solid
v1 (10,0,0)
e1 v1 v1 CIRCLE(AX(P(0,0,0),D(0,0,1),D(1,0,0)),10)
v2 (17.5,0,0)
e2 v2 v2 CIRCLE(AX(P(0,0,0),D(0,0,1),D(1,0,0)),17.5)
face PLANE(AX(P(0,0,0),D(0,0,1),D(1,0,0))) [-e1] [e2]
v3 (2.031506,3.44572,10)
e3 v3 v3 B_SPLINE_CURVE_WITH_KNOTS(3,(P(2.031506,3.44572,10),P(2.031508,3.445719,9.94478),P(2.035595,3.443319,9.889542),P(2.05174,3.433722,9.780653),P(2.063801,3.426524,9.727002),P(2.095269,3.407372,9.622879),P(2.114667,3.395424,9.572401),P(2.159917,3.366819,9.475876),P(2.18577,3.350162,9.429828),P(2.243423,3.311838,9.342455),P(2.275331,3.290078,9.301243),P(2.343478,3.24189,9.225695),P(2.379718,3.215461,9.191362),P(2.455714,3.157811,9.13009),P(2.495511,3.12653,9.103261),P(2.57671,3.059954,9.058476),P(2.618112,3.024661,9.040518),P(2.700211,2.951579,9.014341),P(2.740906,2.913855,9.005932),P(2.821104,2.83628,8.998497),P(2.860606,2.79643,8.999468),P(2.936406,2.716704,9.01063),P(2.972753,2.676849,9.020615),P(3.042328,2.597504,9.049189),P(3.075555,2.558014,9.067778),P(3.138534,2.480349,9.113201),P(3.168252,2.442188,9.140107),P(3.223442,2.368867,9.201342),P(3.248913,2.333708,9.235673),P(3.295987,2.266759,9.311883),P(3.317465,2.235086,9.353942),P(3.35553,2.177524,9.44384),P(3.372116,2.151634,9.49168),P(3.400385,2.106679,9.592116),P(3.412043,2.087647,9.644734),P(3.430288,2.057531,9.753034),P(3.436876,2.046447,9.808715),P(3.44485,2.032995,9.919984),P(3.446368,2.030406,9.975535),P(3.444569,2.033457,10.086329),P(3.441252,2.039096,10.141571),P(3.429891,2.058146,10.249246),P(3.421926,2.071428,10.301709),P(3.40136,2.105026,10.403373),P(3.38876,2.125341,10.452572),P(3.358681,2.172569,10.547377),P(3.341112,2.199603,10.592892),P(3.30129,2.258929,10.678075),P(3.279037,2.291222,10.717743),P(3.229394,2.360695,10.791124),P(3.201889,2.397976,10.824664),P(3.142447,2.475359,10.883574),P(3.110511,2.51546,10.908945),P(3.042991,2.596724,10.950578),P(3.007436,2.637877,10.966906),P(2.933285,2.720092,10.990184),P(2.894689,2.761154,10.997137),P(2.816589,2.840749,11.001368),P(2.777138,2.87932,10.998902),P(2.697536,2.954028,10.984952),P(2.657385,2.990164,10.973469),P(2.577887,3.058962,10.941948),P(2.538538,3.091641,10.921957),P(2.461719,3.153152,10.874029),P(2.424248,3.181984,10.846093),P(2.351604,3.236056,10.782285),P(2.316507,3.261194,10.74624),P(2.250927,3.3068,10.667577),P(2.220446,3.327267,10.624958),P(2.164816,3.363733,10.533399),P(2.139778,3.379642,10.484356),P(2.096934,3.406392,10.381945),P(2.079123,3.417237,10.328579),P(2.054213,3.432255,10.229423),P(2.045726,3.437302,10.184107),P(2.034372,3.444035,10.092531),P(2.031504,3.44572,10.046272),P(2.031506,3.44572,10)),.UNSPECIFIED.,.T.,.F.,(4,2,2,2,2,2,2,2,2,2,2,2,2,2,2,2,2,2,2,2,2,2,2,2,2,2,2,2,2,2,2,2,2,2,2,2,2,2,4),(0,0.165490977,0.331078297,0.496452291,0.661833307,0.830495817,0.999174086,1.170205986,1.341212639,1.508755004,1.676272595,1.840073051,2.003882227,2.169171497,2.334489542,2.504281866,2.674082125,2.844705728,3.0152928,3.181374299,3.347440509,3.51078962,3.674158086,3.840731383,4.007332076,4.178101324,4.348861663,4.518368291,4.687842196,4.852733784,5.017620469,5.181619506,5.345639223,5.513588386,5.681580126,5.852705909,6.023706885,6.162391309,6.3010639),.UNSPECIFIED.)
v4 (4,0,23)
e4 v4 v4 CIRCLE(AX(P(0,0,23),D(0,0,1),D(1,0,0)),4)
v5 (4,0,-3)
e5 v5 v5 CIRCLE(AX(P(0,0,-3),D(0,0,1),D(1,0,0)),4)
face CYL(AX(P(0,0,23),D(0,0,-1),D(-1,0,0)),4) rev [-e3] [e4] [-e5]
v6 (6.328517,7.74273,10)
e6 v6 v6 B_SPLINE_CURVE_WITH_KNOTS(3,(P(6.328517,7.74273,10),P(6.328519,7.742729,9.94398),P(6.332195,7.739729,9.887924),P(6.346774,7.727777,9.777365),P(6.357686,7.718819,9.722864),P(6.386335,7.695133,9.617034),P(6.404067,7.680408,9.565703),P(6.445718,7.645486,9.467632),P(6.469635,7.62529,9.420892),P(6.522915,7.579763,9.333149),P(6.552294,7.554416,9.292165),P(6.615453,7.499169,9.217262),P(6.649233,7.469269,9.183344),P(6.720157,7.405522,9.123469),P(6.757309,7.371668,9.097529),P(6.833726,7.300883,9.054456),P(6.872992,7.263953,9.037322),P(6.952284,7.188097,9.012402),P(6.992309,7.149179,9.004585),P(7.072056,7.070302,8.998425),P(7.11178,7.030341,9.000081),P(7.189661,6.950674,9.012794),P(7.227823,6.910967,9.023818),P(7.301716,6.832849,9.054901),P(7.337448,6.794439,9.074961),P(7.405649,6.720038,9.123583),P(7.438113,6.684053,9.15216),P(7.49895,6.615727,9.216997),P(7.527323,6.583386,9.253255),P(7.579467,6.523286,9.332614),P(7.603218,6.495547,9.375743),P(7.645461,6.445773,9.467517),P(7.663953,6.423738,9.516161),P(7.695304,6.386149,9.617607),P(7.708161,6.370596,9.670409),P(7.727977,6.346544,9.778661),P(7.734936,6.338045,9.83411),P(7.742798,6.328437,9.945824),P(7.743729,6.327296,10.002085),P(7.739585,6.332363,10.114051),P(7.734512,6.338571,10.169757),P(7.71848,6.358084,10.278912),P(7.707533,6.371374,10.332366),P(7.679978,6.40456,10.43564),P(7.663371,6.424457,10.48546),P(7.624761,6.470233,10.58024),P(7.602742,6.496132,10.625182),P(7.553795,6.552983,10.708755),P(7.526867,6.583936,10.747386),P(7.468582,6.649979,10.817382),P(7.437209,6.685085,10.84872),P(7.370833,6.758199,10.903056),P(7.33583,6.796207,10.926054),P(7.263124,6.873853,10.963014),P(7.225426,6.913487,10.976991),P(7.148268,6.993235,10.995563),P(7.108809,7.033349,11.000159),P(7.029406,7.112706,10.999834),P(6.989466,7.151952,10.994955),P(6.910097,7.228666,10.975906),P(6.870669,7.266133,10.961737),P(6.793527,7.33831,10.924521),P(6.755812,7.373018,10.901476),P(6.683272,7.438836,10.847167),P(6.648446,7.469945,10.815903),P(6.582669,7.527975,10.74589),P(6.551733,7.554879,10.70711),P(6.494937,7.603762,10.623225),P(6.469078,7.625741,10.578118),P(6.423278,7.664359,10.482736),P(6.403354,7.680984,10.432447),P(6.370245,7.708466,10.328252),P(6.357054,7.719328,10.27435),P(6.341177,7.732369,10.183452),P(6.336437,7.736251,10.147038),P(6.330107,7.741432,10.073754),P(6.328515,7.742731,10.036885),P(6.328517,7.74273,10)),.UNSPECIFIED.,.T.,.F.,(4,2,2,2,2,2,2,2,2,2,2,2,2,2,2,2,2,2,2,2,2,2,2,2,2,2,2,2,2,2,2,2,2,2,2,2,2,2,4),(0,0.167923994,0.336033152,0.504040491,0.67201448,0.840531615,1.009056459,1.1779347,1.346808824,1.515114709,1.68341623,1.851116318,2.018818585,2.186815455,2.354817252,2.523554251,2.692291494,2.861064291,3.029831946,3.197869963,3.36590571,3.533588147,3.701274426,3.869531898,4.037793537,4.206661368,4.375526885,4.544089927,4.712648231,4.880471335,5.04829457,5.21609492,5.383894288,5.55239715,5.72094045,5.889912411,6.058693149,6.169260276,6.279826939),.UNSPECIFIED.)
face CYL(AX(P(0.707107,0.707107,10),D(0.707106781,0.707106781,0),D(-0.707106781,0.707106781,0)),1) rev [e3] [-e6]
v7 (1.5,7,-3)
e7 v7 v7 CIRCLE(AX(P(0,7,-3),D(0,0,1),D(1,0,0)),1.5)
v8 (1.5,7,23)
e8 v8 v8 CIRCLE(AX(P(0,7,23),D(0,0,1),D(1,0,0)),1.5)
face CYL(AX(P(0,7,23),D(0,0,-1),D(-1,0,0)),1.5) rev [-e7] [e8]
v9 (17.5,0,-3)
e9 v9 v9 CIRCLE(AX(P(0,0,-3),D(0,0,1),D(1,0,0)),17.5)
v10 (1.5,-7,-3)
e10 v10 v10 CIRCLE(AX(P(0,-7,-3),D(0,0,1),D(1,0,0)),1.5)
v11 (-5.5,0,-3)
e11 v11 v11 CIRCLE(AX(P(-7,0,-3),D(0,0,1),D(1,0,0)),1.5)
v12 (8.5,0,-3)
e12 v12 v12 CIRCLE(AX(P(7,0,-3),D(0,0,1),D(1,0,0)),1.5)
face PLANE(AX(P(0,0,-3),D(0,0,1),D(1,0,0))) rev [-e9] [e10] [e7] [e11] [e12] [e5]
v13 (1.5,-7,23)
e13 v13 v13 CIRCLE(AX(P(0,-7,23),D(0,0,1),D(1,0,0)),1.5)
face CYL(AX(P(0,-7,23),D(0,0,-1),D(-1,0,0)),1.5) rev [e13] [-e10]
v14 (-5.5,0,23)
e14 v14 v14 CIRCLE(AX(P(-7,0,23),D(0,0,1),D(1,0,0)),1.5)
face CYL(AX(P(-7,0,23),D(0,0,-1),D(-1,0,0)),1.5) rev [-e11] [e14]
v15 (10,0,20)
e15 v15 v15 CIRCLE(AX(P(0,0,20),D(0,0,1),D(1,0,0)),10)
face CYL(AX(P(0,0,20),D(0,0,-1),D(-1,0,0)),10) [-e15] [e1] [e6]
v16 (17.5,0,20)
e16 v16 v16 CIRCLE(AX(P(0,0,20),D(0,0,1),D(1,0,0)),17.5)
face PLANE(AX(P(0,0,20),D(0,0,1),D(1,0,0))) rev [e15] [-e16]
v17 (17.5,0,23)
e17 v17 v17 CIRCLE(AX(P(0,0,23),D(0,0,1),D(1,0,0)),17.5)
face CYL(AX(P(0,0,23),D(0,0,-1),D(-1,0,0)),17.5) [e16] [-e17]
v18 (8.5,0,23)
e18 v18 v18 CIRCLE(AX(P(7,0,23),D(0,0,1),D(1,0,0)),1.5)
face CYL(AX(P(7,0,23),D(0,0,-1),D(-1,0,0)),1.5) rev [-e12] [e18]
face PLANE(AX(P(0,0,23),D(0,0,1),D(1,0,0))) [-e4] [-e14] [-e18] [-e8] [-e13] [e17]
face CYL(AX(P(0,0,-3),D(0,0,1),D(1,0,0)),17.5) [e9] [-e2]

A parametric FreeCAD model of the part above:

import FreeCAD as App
import Part
import Sketcher
from FreeCAD import Vector

doc = App.newDocument("Part")
params = doc.addObject("Spreadsheet::Sheet", "Params")
for row, (alias, value) in enumerate([
    ("sketch1_diameter", "35 mm"),
    ("sketch1_diameter2", "3 mm"),
    ("sketch1_diameter3", "8 mm"),
    ("pad1_length", "23 mm"),
    ("sketch2_diameter", "35 mm"),
    ("sketch2_diameter2", "20 mm"),
    ("pocket1_length", "20 mm"),
    ("sketch3_diameter", "35 mm"),
    ("sketch3_diameter2", "3 mm"),
    ("sketch3_diameter3", "8 mm"),
    ("pad2_length", "3 mm"),
    ("sketch4_diameter", "2 mm"),
    ("pocket2_length", "9 mm"),
], start=1):
    params.set(f"A{row}", alias)
    params.set(f"B{row}", "=" + value)
    params.setAlias(f"B{row}", alias)

body = doc.addObject("PartDesign::Body", "Body")

# Sketch on XY plane
sketch1 = body.newObject("Sketcher::SketchObject", "Sketch")
sketch1.AttachmentSupport = (doc.getObject("XY_Plane"), [""])
sketch1.MapMode = "FlatFace"
sketch1.addGeometry(Part.Circle(Vector(0, 0, 0), Vector(0, 0, 1), 17.5), False)
sketch1.addGeometry(Part.Circle(Vector(0, 7, 0), Vector(0, 0, 1), 1.5), False)
sketch1.addGeometry(Part.Circle(Vector(0, -7, 0), Vector(0, 0, 1), 1.5), False)
sketch1.addGeometry(Part.Circle(Vector(-7, 0, 0), Vector(0, 0, 1), 1.5), False)
sketch1.addGeometry(Part.Circle(Vector(0, 0, 0), Vector(0, 0, 1), 4), False)
sketch1.addGeometry(Part.Circle(Vector(7, 0, 0), Vector(0, 0, 1), 1.5), False)
sketch1.addConstraint(Sketcher.Constraint("Coincident", 0, 3, -1, 1))
sketch1.addConstraint(Sketcher.Constraint("Coincident", 4, 3, -1, 1))
sketch1.addConstraint(Sketcher.Constraint("Equal", 1, 2))
sketch1.addConstraint(Sketcher.Constraint("Equal", 2, 3))
sketch1.addConstraint(Sketcher.Constraint("Equal", 3, 5))
sketch1.addConstraint(Sketcher.Constraint("Symmetric", 1, 3, 2, 3, -1, 1))
sketch1.addConstraint(Sketcher.Constraint("Symmetric", 3, 3, 5, 3, -1, 1))
sketch1.addConstraint(Sketcher.Constraint("PointOnObject", 1, 3, -2))
sketch1.addConstraint(Sketcher.Constraint("PointOnObject", 3, 3, -1))
sketch1.addConstraint(Sketcher.Constraint("Diameter", 0, 35.0))
sketch1.addConstraint(Sketcher.Constraint("Diameter", 1, 3.0))
sketch1.addConstraint(Sketcher.Constraint("Diameter", 4, 8.0))
sketch1.addConstraint(Sketcher.Constraint("DistanceY", -1, 1, 1, 3, 7.0))
sketch1.addConstraint(Sketcher.Constraint("DistanceX", 3, 3, -1, 1, 7.0))
sketch1.setExpression("Constraints[9]", "Params.sketch1_diameter")
sketch1.setExpression("Constraints[10]", "Params.sketch1_diameter2")
sketch1.setExpression("Constraints[11]", "Params.sketch1_diameter3")
pad1 = body.newObject("PartDesign::Pad", "Pad")
pad1.Profile = sketch1
pad1.setExpression("Length", "Params.pad1_length")

# Sketch on XY plane
sketch2 = body.newObject("Sketcher::SketchObject", "Sketch001")
sketch2.AttachmentSupport = (doc.getObject("XY_Plane"), [""])
sketch2.MapMode = "FlatFace"
sketch2.addGeometry(Part.Circle(Vector(0, 0, 0), Vector(0, 0, 1), 18), False)
sketch2.addGeometry(Part.Circle(Vector(0, 0, 0), Vector(0, 0, 1), 10), False)
sketch2.addConstraint(Sketcher.Constraint("Coincident", 0, 3, -1, 1))
sketch2.addConstraint(Sketcher.Constraint("Coincident", 1, 3, -1, 1))
sketch2.addConstraint(Sketcher.Constraint("Diameter", 0, 35.0))
sketch2.addConstraint(Sketcher.Constraint("Diameter", 1, 20.0))
sketch2.setExpression("Constraints[2]", "Params.sketch2_diameter")
sketch2.setExpression("Constraints[3]", "Params.sketch2_diameter2")
pocket1 = body.newObject("PartDesign::Pocket", "Pocket")
pocket1.Profile = sketch2
pocket1.setExpression("Length", "Params.pocket1_length")
pocket1.Reversed = True

# Sketch on XY plane
sketch3 = body.newObject("Sketcher::SketchObject", "Sketch002")
sketch3.AttachmentSupport = (doc.getObject("XY_Plane"), [""])
sketch3.MapMode = "FlatFace"
sketch3.AttachmentOffset = App.Placement(Vector(0, 0, -3), App.Rotation())
sketch3.addGeometry(Part.Circle(Vector(0, 0, 0), Vector(0, 0, 1), 17.5), False)
sketch3.addGeometry(Part.Circle(Vector(0, 7, 0), Vector(0, 0, 1), 1.5), False)
sketch3.addGeometry(Part.Circle(Vector(0, -7, 0), Vector(0, 0, 1), 1.5), False)
sketch3.addGeometry(Part.Circle(Vector(-7, 0, 0), Vector(0, 0, 1), 1.5), False)
sketch3.addGeometry(Part.Circle(Vector(0, 0, 0), Vector(0, 0, 1), 4), False)
sketch3.addGeometry(Part.Circle(Vector(7, 0, 0), Vector(0, 0, 1), 1.5), False)
sketch3.addConstraint(Sketcher.Constraint("Coincident", 0, 3, -1, 1))
sketch3.addConstraint(Sketcher.Constraint("Coincident", 4, 3, -1, 1))
sketch3.addConstraint(Sketcher.Constraint("Equal", 1, 2))
sketch3.addConstraint(Sketcher.Constraint("Equal", 2, 3))
sketch3.addConstraint(Sketcher.Constraint("Equal", 3, 5))
sketch3.addConstraint(Sketcher.Constraint("Symmetric", 1, 3, 2, 3, -1, 1))
sketch3.addConstraint(Sketcher.Constraint("Symmetric", 3, 3, 5, 3, -1, 1))
sketch3.addConstraint(Sketcher.Constraint("PointOnObject", 1, 3, -2))
sketch3.addConstraint(Sketcher.Constraint("PointOnObject", 3, 3, -1))
sketch3.addConstraint(Sketcher.Constraint("Diameter", 0, 35.0))
sketch3.addConstraint(Sketcher.Constraint("Diameter", 1, 3.0))
sketch3.addConstraint(Sketcher.Constraint("Diameter", 4, 8.0))
sketch3.addConstraint(Sketcher.Constraint("DistanceY", -1, 1, 1, 3, 7.0))
sketch3.addConstraint(Sketcher.Constraint("DistanceX", 3, 3, -1, 1, 7.0))
sketch3.setExpression("Constraints[9]", "Params.sketch3_diameter")
sketch3.setExpression("Constraints[10]", "Params.sketch3_diameter2")
sketch3.setExpression("Constraints[11]", "Params.sketch3_diameter3")
pad2 = body.newObject("PartDesign::Pad", "Pad001")
pad2.Profile = sketch3
pad2.setExpression("Length", "Params.pad2_length")

# Sketch on an angled plane
sketch4 = body.newObject("Sketcher::SketchObject", "Sketch003")
sketch4.Placement = App.Placement(Vector(7.071068, 7.071068, 0), App.Rotation(Vector(0.707106781, -0.707106781, 0), Vector(0, 0, -0.999999999), Vector(0.707106781, 0.707106781, 0), "ZXY"))
sketch4.addGeometry(Part.Circle(Vector(0, -10, 0), Vector(0, 0, 1), 1), False)
sketch4.addConstraint(Sketcher.Constraint("PointOnObject", 0, 3, -2))
sketch4.addConstraint(Sketcher.Constraint("Diameter", 0, 2.0))
sketch4.addConstraint(Sketcher.Constraint("DistanceY", 0, 3, -1, 1, 10.0))
sketch4.setExpression("Constraints[1]", "Params.sketch4_diameter")
pocket2 = body.newObject("PartDesign::Pocket", "Pocket001")
pocket2.Profile = sketch4
pocket2.setExpression("Length", "Params.pocket2_length")

doc.recompute()
